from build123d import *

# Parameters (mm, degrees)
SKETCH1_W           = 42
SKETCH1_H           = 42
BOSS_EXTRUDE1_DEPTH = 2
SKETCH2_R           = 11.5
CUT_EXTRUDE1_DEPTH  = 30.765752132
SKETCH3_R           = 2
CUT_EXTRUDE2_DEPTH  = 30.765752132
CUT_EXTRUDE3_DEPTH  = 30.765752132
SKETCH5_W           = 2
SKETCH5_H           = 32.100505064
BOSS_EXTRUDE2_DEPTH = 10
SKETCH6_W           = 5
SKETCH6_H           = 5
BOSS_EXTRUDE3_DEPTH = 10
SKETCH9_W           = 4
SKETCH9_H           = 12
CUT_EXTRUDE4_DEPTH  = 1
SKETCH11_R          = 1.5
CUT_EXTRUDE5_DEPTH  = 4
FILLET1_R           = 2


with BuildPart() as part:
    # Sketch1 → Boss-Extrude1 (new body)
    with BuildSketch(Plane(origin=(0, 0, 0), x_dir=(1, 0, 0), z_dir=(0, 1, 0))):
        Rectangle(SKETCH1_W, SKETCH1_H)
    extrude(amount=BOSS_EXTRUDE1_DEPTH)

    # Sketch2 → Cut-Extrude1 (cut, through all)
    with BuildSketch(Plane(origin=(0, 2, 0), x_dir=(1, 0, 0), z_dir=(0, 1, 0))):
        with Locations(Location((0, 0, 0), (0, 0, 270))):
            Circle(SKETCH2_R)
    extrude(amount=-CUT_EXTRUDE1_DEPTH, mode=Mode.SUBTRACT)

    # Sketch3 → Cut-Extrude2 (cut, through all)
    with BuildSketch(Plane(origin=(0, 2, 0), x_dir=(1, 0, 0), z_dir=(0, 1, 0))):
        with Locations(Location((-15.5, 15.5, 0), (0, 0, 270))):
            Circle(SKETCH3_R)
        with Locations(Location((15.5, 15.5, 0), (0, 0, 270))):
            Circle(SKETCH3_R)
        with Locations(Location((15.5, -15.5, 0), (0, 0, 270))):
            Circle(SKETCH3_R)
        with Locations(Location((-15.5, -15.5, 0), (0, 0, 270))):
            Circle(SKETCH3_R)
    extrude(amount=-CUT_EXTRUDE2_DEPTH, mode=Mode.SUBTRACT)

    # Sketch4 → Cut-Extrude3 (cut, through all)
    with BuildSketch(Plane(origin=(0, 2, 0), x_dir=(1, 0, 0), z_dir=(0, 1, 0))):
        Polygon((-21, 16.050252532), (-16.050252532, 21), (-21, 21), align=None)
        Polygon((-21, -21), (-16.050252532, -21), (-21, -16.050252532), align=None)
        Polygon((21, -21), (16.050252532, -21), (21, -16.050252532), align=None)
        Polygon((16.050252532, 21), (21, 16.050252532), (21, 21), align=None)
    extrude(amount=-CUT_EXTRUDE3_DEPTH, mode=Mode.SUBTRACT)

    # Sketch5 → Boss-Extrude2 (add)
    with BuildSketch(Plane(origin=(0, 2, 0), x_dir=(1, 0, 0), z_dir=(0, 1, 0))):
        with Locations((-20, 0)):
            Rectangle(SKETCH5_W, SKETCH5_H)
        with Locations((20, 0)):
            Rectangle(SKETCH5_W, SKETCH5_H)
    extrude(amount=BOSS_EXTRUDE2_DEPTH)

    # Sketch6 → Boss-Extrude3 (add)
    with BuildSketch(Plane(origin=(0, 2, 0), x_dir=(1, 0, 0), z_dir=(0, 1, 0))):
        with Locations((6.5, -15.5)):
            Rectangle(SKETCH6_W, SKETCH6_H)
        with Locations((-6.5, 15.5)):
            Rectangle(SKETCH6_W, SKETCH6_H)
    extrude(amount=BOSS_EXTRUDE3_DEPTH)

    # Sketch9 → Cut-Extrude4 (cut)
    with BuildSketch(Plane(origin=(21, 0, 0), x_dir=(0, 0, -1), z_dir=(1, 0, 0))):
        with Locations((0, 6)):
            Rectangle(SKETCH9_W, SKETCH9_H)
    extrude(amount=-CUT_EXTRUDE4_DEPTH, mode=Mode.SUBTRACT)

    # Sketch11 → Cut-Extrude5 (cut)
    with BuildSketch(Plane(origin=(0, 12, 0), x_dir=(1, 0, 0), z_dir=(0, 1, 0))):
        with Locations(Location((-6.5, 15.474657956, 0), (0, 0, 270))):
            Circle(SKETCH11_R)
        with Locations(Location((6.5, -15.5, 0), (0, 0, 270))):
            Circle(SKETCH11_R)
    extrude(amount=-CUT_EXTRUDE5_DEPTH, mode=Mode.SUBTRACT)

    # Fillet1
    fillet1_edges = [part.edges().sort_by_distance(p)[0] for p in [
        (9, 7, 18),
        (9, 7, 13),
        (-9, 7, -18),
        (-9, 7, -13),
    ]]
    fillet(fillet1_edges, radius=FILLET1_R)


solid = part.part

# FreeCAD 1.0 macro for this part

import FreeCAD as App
import Part
import Sketcher
from FreeCAD import Vector
Q = App.Units.Quantity


def edges_at(feature, points):
    """Names of the edges that pass closest to the given points."""
    edges = feature.Shape.Edges
    near = lambda p: min(range(len(edges)), key=lambda i: edges[i].distToShape(Part.Vertex(*p))[0])
    return sorted({f"Edge{near(p) + 1}" for p in points})


def add_polygon(sketch, points):
    """Adds a closed chain of lines whose ends are joined by coincident constraints."""
    first, n = sketch.GeometryCount, len(points)
    for a, b in zip(points, points[1:] + points[:1]):
        sketch.addGeometry(Part.LineSegment(App.Vector(*a, 0), App.Vector(*b, 0)), False)
    for i in range(n):
        sketch.addConstraint(Sketcher.Constraint("Coincident", first + i, 2, first + (i + 1) % n, 1))

doc = App.newDocument("Part")
body = doc.addObject("PartDesign::Body", "Body")

sketch1 = doc.addObject("Sketcher::SketchObject", "Sketch")
body.addObject(sketch1)
sketch1.AttachmentSupport = (doc.XZ_Plane, [""])
sketch1.MapMode = "FlatFace"
add_polygon(sketch1, [(-21, -21), (-21, 21), (21, 21), (21, -21)])
sketch1.addConstraint([
    Sketcher.Constraint("Vertical", 0),
    Sketcher.Constraint("Horizontal", 1),
    Sketcher.Constraint("Vertical", 2),
    Sketcher.Constraint("Horizontal", 3),
    Sketcher.Constraint("Symmetric", 0, 2, 2, 2, -1, 1),
    Sketcher.Constraint("Equal", 3, 0),
    Sketcher.Constraint("DistanceX", 1, 1, 1, 2, Q("42 mm")),
])
pad1 = doc.addObject("PartDesign::Pad", "Pad")
body.addObject(pad1)
pad1.Profile = sketch1
pad1.Length = 2
pad1.Reversed = True

sketch2 = doc.addObject("Sketcher::SketchObject", "Sketch001")
body.addObject(sketch2)
sketch2.AttachmentSupport = (doc.XZ_Plane, [""])
sketch2.MapMode = "FlatFace"
sketch2.AttachmentOffset = App.Placement(Vector(0, 0, -2), App.Rotation())
sketch2.addGeometry(Part.Circle(Vector(0, 0, 0), Vector(0, 0, 1), 11.5), False)
sketch2.addConstraint([
    Sketcher.Constraint("Coincident", 0, 3, -1, 1),
    Sketcher.Constraint("Diameter", 0, Q("23 mm")),
])
pocket1 = doc.addObject("PartDesign::Pocket", "Pocket")
body.addObject(pocket1)
pocket1.Profile = sketch2
pocket1.Type = "ThroughAll"
pocket1.Reversed = True

sketch3 = doc.addObject("Sketcher::SketchObject", "Sketch002")
body.addObject(sketch3)
sketch3.AttachmentSupport = (doc.XZ_Plane, [""])
sketch3.MapMode = "FlatFace"
sketch3.AttachmentOffset = App.Placement(Vector(0, 0, -2), App.Rotation())
sketch3.addGeometry([
    Part.Circle(Vector(-15.5, -15.5, 0), Vector(0, 0, 1), 2),
    Part.Circle(Vector(15.5, -15.5, 0), Vector(0, 0, 1), 2),
    Part.Circle(Vector(15.5, 15.5, 0), Vector(0, 0, 1), 2),
    Part.Circle(Vector(-15.5, 15.5, 0), Vector(0, 0, 1), 2),
], False)
sketch3.addConstraint([
    Sketcher.Constraint("Equal", 0, 1),
    Sketcher.Constraint("Equal", 1, 2),
    Sketcher.Constraint("Equal", 2, 3),
    Sketcher.Constraint("Symmetric", 0, 3, 2, 3, -1, 1),
    Sketcher.Constraint("Symmetric", 1, 3, 3, 3, -1, 1),
    Sketcher.Constraint("Symmetric", 0, 3, 1, 3, -2),
    Sketcher.Constraint("Diameter", 0, Q("4 mm")),
    Sketcher.Constraint("DistanceX", 0, 3, 1, 3, Q("31 mm")),
    Sketcher.Constraint("DistanceY", 1, 3, 2, 3, Q("31 mm")),
])
pocket2 = doc.addObject("PartDesign::Pocket", "Pocket001")
body.addObject(pocket2)
pocket2.Profile = sketch3
pocket2.Type = "ThroughAll"
pocket2.Reversed = True

sketch4 = doc.addObject("Sketcher::SketchObject", "Sketch003")
body.addObject(sketch4)
sketch4.AttachmentSupport = (doc.XZ_Plane, [""])
sketch4.MapMode = "FlatFace"
sketch4.AttachmentOffset = App.Placement(Vector(0, 0, -2), App.Rotation())
add_polygon(sketch4, [(-21, -16.050253), (-16.050253, -21), (-21, -21)])
add_polygon(sketch4, [(-21, 21), (-16.050253, 21), (-21, 16.050253)])
add_polygon(sketch4, [(16.050253, 21), (21, 21), (21, 16.050253)])
add_polygon(sketch4, [(16.050253, -21), (21, -16.050253), (21, -21)])
sketch4.addConstraint([
    Sketcher.Constraint("Horizontal", 1),
    Sketcher.Constraint("Vertical", 2),
    Sketcher.Constraint("Horizontal", 3),
    Sketcher.Constraint("Vertical", 5),
    Sketcher.Constraint("Horizontal", 6),
    Sketcher.Constraint("Vertical", 7),
    Sketcher.Constraint("Vertical", 10),
    Sketcher.Constraint("Horizontal", 11),
    Sketcher.Constraint("Symmetric", 1, 2, 6, 2, -1, 1),
    Sketcher.Constraint("Symmetric", 4, 2, 9, 2, -1, 1),
    Sketcher.Constraint("Symmetric", 3, 2, 11, 2, -1, 1),
    Sketcher.Constraint("Symmetric", 5, 2, 6, 2, -2),
    Sketcher.Constraint("Perpendicular", 0, 4),
    Sketcher.Constraint("Perpendicular", 4, 8),
    Sketcher.Constraint("Horizontal", 4, 2, 7, 2),
    Sketcher.Constraint("Horizontal", 2, 2, 9, 2),
    Sketcher.Constraint("Vertical", 0, 2, 3, 2),
    Sketcher.Constraint("Distance", 0, Q("7 mm")),
    Sketcher.Constraint("DistanceY", 0, 2, -1, 1, Q("21 mm")),
    Sketcher.Constraint("DistanceX", 1, 2, -1, 1, Q("21 mm")),
])
pocket3 = doc.addObject("PartDesign::Pocket", "Pocket002")
body.addObject(pocket3)
pocket3.Profile = sketch4
pocket3.Type = "ThroughAll"
pocket3.Reversed = True

sketch5 = doc.addObject("Sketcher::SketchObject", "Sketch004")
body.addObject(sketch5)
sketch5.AttachmentSupport = (doc.XZ_Plane, [""])
sketch5.MapMode = "FlatFace"
sketch5.AttachmentOffset = App.Placement(Vector(0, 0, -2), App.Rotation())
add_polygon(sketch5, [(-21, -16.050253), (-21, 16.050253), (-19, 16.050253), (-19, -16.050253)])
add_polygon(sketch5, [(19, -16.050253), (19, 16.050253), (21, 16.050253), (21, -16.050253)])
sketch5.addConstraint([
    Sketcher.Constraint("Vertical", 0),
    Sketcher.Constraint("Horizontal", 1),
    Sketcher.Constraint("Vertical", 2),
    Sketcher.Constraint("Horizontal", 3),
    Sketcher.Constraint("Vertical", 4),
    Sketcher.Constraint("Horizontal", 5),
    Sketcher.Constraint("Vertical", 6),
    Sketcher.Constraint("Horizontal", 7),
    Sketcher.Constraint("Symmetric", 2, 2, 4, 2, -1, 1),
    Sketcher.Constraint("Symmetric", 0, 2, 6, 2, -1, 1),
    Sketcher.Constraint("Horizontal", 1, 2, 4, 2),
    Sketcher.Constraint("DistanceX", 1, 1, 1, 2, Q("2 mm")),
    Sketcher.Constraint("DistanceX", 0, 2, -1, 1, Q("21 mm")),
    Sketcher.Constraint("DistanceY", 0, 1, 0, 2, Q("32.100505 mm")),
])
pad2 = doc.addObject("PartDesign::Pad", "Pad001")
body.addObject(pad2)
pad2.Profile = sketch5
pad2.Length = 10
pad2.Reversed = True

sketch6 = doc.addObject("Sketcher::SketchObject", "Sketch005")
body.addObject(sketch6)
sketch6.AttachmentSupport = (doc.XZ_Plane, [""])
sketch6.MapMode = "FlatFace"
sketch6.AttachmentOffset = App.Placement(Vector(0, 0, -2), App.Rotation())
add_polygon(sketch6, [(4, 13), (4, 18), (9, 18), (9, 13)])
add_polygon(sketch6, [(-9, -18), (-9, -13), (-4, -13), (-4, -18)])
sketch6.addConstraint([
    Sketcher.Constraint("Vertical", 0),
    Sketcher.Constraint("Horizontal", 1),
    Sketcher.Constraint("Vertical", 2),
    Sketcher.Constraint("Horizontal", 3),
    Sketcher.Constraint("Vertical", 4),
    Sketcher.Constraint("Horizontal", 5),
    Sketcher.Constraint("Vertical", 6),
    Sketcher.Constraint("Horizontal", 7),
    Sketcher.Constraint("Symmetric", 2, 2, 4, 2, -1, 1),
    Sketcher.Constraint("Symmetric", 0, 2, 6, 2, -1, 1),
    Sketcher.Constraint("Equal", 7, 0),
    Sketcher.Constraint("DistanceX", 1, 1, 1, 2, Q("5 mm")),
    Sketcher.Constraint("DistanceX", -1, 1, 0, 2, Q("4 mm")),
    Sketcher.Constraint("DistanceY", -1, 1, 0, 2, Q("18 mm")),
])
pad3 = doc.addObject("PartDesign::Pad", "Pad002")
body.addObject(pad3)
pad3.Profile = sketch6
pad3.Length = 10
pad3.Reversed = True

sketch7 = doc.addObject("Sketcher::SketchObject", "Sketch006")
body.addObject(sketch7)
sketch7.AttachmentSupport = (doc.YZ_Plane, [""])
sketch7.MapMode = "FlatFace"
sketch7.AttachmentOffset = App.Placement(Vector(0, 0, 21), App.Rotation())
add_polygon(sketch7, [(12, 2), (0, 2), (0, -2), (12, -2)])
sketch7.addConstraint([
    Sketcher.Constraint("Horizontal", 0),
    Sketcher.Constraint("Vertical", 1),
    Sketcher.Constraint("Horizontal", 2),
    Sketcher.Constraint("Vertical", 3),
    Sketcher.Constraint("Symmetric", 0, 2, 1, 2, -1, 1),
    Sketcher.Constraint("DistanceX", 0, 2, 0, 1, Q("12 mm")),
    Sketcher.Constraint("DistanceY", 1, 2, 1, 1, Q("4 mm")),
])
pocket4 = doc.addObject("PartDesign::Pocket", "Pocket003")
body.addObject(pocket4)
pocket4.Profile = sketch7
pocket4.Length = 1

sketch8 = doc.addObject("Sketcher::SketchObject", "Sketch007")
body.addObject(sketch8)
sketch8.AttachmentSupport = (doc.XZ_Plane, [""])
sketch8.MapMode = "FlatFace"
sketch8.AttachmentOffset = App.Placement(Vector(0, 0, -12), App.Rotation())
sketch8.addGeometry([
    Part.Circle(Vector(-6.5, -15.474658, 0), Vector(0, 0, 1), 1.5),
    Part.Circle(Vector(6.5, 15.5, 0), Vector(0, 0, 1), 1.5),
], False)
sketch8.addConstraint([
    Sketcher.Constraint("Equal", 0, 1),
    Sketcher.Constraint("Diameter", 0, Q("3 mm")),
    Sketcher.Constraint("DistanceX", 0, 3, 1, 3, Q("13 mm")),
    Sketcher.Constraint("DistanceX", 0, 3, -1, 1, Q("6.5 mm")),
    Sketcher.Constraint("DistanceY", -1, 1, 1, 3, Q("15.5 mm")),
    Sketcher.Constraint("DistanceY", 0, 3, -1, 1, Q("15.474658 mm")),
])
pocket5 = doc.addObject("PartDesign::Pocket", "Pocket004")
body.addObject(pocket5)
pocket5.Profile = sketch8
pocket5.Length = 4
pocket5.Reversed = True
doc.recompute()

fillet = doc.addObject("PartDesign::Fillet", "Fillet")
body.addObject(fillet)
fillet.Base = (pocket5, edges_at(pocket5, [
    (9, 7, 18),
    (9, 7, 13),
    (-9, 7, -18),
    (-9, 7, -13),
]))
fillet.Radius = 2

doc.recompute()
